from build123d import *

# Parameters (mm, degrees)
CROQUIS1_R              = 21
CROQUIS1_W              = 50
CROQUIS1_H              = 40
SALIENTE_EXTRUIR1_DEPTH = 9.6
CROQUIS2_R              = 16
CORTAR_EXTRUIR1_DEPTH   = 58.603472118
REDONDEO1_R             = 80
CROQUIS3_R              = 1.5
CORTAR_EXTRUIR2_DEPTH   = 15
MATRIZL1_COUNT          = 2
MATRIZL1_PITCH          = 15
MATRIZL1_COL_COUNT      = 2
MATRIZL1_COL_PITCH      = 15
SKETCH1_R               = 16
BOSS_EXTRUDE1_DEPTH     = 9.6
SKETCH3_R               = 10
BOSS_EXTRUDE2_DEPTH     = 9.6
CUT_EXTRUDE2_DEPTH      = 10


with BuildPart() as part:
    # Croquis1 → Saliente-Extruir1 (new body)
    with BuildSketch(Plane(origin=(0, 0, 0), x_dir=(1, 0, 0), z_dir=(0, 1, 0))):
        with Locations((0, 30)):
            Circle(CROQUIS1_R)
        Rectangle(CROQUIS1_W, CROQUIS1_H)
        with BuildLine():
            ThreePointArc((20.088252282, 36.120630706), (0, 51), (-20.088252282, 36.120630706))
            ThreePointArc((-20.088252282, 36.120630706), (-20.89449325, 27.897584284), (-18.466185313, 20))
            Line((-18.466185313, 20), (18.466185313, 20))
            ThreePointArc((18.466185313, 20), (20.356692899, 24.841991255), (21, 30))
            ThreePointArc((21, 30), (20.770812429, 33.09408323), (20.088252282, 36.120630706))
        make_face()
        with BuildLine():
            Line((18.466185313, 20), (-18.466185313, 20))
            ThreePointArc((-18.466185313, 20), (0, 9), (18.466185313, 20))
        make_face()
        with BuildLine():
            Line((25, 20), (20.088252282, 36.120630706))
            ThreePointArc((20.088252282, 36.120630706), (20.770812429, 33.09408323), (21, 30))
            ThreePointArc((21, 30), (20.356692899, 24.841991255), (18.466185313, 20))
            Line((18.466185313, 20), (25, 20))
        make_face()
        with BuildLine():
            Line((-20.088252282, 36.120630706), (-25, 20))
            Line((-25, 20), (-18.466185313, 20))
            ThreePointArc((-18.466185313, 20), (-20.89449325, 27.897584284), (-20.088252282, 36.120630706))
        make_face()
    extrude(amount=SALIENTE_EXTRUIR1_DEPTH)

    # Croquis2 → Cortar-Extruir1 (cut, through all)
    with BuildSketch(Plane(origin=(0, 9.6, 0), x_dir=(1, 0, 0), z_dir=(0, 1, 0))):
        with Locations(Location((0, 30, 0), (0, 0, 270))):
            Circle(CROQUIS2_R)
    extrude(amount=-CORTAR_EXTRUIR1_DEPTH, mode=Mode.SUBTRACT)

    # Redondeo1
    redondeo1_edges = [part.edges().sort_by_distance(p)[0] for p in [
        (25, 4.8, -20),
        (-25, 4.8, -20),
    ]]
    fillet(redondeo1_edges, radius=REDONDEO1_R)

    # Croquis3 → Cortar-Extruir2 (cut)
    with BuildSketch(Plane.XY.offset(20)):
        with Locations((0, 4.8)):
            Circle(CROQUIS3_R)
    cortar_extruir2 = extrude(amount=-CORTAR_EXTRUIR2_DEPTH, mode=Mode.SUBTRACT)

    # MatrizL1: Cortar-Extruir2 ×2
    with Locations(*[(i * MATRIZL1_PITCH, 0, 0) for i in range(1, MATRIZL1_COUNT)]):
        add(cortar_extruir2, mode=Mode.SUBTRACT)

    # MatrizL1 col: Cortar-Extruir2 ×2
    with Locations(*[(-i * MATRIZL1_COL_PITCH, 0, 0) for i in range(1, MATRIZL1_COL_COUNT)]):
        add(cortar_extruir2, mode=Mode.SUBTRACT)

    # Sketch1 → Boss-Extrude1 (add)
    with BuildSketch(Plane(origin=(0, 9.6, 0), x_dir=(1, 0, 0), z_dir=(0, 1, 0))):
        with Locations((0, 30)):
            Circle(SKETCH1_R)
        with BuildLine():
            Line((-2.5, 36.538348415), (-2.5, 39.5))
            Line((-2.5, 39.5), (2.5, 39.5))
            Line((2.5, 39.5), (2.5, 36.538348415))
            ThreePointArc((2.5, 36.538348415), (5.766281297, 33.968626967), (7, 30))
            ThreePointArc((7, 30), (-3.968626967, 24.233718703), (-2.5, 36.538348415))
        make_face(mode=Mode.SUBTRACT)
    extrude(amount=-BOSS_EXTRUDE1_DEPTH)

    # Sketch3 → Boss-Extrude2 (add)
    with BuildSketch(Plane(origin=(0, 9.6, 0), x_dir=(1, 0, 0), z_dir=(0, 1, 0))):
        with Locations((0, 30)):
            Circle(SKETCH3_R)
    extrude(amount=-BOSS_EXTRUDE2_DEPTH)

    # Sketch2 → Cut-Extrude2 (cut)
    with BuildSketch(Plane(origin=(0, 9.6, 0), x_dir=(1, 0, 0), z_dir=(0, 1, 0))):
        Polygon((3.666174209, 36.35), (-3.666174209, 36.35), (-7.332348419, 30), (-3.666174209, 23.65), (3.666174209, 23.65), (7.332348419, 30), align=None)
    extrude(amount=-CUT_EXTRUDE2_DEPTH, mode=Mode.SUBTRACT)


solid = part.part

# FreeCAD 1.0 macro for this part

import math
import FreeCAD as App
import Part
import Sketcher
from FreeCAD import Vector
Q = App.Units.Quantity


def edges_at(feature, points):
    """Names of the edges that pass closest to the given points."""
    edges = feature.Shape.Edges
    near = lambda p: min(range(len(edges)), key=lambda i: edges[i].distToShape(Part.Vertex(*p))[0])
    return sorted({f"Edge{near(p) + 1}" for p in points})


def add_polygon(sketch, points):
    """Adds a closed chain of lines whose ends are joined by coincident constraints."""
    first, n = sketch.GeometryCount, len(points)
    for a, b in zip(points, points[1:] + points[:1]):
        sketch.addGeometry(Part.LineSegment(App.Vector(*a, 0), App.Vector(*b, 0)), False)
    for i in range(n):
        sketch.addConstraint(Sketcher.Constraint("Coincident", first + i, 2, first + (i + 1) % n, 1))

doc = App.newDocument("Part")
body = doc.addObject("PartDesign::Body", "Body")

sketch1 = body.newObject("Sketcher::SketchObject", "Sketch")
sketch1.AttachmentSupport = (doc.getObject("XZ_Plane"), [""])
sketch1.MapMode = "FlatFace"
sketch1.addGeometry([
    Part.ArcOfCircle(Part.Circle(Vector(0, -30, 0), Vector(0, 0, 1), 21), math.radians(-163), math.radians(-17)),
    Part.LineSegment(Vector(-20, -36, 0), Vector(-25, -20, 0)),
    Part.LineSegment(Vector(-25, -20, 0), Vector(-25, 20, 0)),
    Part.LineSegment(Vector(-25, 20, 0), Vector(25, 20, 0)),
    Part.LineSegment(Vector(25, 20, 0), Vector(25, -20, 0)),
    Part.LineSegment(Vector(25, -20, 0), Vector(20, -36, 0)),
], False)
sketch1.addConstraint([
    Sketcher.Constraint("Tangent", 0, 1, 1, 1),
    Sketcher.Constraint("Coincident", 1, 2, 2, 1),
    Sketcher.Constraint("Coincident", 2, 2, 3, 1),
    Sketcher.Constraint("Coincident", 3, 2, 4, 1),
    Sketcher.Constraint("Coincident", 4, 2, 5, 1),
    Sketcher.Constraint("Tangent", 5, 2, 0, 2),
    Sketcher.Constraint("Vertical", 2),
    Sketcher.Constraint("Horizontal", 3),
    Sketcher.Constraint("Vertical", 4),
    Sketcher.Constraint("Symmetric", 1, 2, 3, 2, -1, 1),
    Sketcher.Constraint("Symmetric", 0, 1, 5, 2, -2),
    Sketcher.Constraint("Radius", 0, Q("21 mm")),
    Sketcher.Constraint("DistanceX", 3, 1, 3, 2, Q("50 mm")),
    Sketcher.Constraint("DistanceY", 2, 1, 2, 2, Q("40 mm")),
    Sketcher.Constraint("DistanceY", 0, 3, -1, 1, Q("30 mm")),
])
pad1 = body.newObject("PartDesign::Pad", "Pad")
pad1.Profile = sketch1
pad1.Length = 9.6
pad1.Reversed = True

sketch2 = body.newObject("Sketcher::SketchObject", "Sketch001")
sketch2.AttachmentSupport = (doc.getObject("XZ_Plane"), [""])
sketch2.MapMode = "FlatFace"
sketch2.AttachmentOffset = App.Placement(Vector(0, 0, -9.6), App.Rotation())
sketch2.addGeometry(Part.Circle(Vector(0, -30, 0), Vector(0, 0, 1), 16), False)
sketch2.addConstraint([
    Sketcher.Constraint("PointOnObject", 0, 3, -2),
    Sketcher.Constraint("Diameter", 0, Q("32 mm")),
    Sketcher.Constraint("DistanceY", 0, 3, -1, 1, Q("30 mm")),
])
pocket1 = body.newObject("PartDesign::Pocket", "Pocket")
pocket1.Profile = sketch2
pocket1.Type = "ThroughAll"
pocket1.Reversed = True
doc.recompute()

fillet = body.newObject("PartDesign::Fillet", "Fillet")
fillet.Base = (pocket1, edges_at(pocket1, [(25, 4.8, -20), (-25, 4.8, -20)]))
fillet.Radius = 80

sketch3 = body.newObject("Sketcher::SketchObject", "Sketch002")
sketch3.AttachmentSupport = (doc.getObject("XY_Plane"), [""])
sketch3.MapMode = "FlatFace"
sketch3.AttachmentOffset = App.Placement(Vector(0, 0, 20), App.Rotation())
sketch3.addGeometry(Part.Circle(Vector(0, 4.8, 0), Vector(0, 0, 1), 1.5), False)
sketch3.addConstraint([
    Sketcher.Constraint("PointOnObject", 0, 3, -2),
    Sketcher.Constraint("Diameter", 0, Q("3 mm")),
    Sketcher.Constraint("DistanceY", -1, 1, 0, 3, Q("4.8 mm")),
])
pocket2 = body.newObject("PartDesign::Pocket", "Pocket001")
pocket2.Profile = sketch3
pocket2.Length = 15
doc.recompute()

linearpattern = body.newObject("PartDesign::LinearPattern", "LinearPattern")
linearpattern.Originals = [pocket2]
linearpattern.Direction = (doc.getObject("X_Axis"), [""])
linearpattern.Mode = "offset"
linearpattern.Offset = 15
linearpattern.Occurrences = 2
body.Tip = linearpattern
doc.recompute()

linearpattern2 = body.newObject("PartDesign::LinearPattern", "LinearPattern001")
linearpattern2.Originals = [pocket2]
linearpattern2.Direction = (doc.getObject("X_Axis"), [""])
linearpattern2.Mode = "offset"
linearpattern2.Offset = 15
linearpattern2.Occurrences = 2
linearpattern2.Reversed = True
body.Tip = linearpattern2

sketch4 = body.newObject("Sketcher::SketchObject", "Sketch003")
sketch4.AttachmentSupport = (doc.getObject("XZ_Plane"), [""])
sketch4.MapMode = "FlatFace"
sketch4.AttachmentOffset = App.Placement(Vector(0, 0, -9.6), App.Rotation())
sketch4.addGeometry([
    Part.Circle(Vector(0, -30, 0), Vector(0, 0, 1), 16),
    Part.ArcOfCircle(Part.Circle(Vector(0, -30, 0), Vector(0, 0, 1), 7), math.radians(0), math.radians(249)),
    Part.LineSegment(Vector(-2.5, -36.5, 0), Vector(-2.5, -39.5, 0)),
    Part.LineSegment(Vector(-2.5, -39.5, 0), Vector(2.5, -39.5, 0)),
    Part.LineSegment(Vector(2.5, -39.5, 0), Vector(2.5, -36.5, 0)),
    Part.ArcOfCircle(Part.Circle(Vector(0, -30, 0), Vector(0, 0, 1), 7), math.radians(-69), math.radians(0)),
], False)
sketch4.addConstraint([
    Sketcher.Constraint("Coincident", 1, 2, 2, 1),
    Sketcher.Constraint("Coincident", 2, 2, 3, 1),
    Sketcher.Constraint("Coincident", 3, 2, 4, 1),
    Sketcher.Constraint("Coincident", 4, 2, 5, 1),
    Sketcher.Constraint("Tangent", 5, 2, 1, 1),
    Sketcher.Constraint("Vertical", 2),
    Sketcher.Constraint("Horizontal", 3),
    Sketcher.Constraint("Vertical", 4),
    Sketcher.Constraint("Coincident", 1, 3, 0, 3),
    Sketcher.Constraint("Equal", 1, 5),
    Sketcher.Constraint("Symmetric", 1, 2, 4, 2, -2),
    Sketcher.Constraint("Horizontal", 1, 3, 5, 2),
    Sketcher.Constraint("Diameter", 0, Q("32 mm")),
    Sketcher.Constraint("Radius", 1, Q("7 mm")),
    Sketcher.Constraint("DistanceX", 3, 1, 3, 2, Q("5 mm")),
    Sketcher.Constraint("DistanceY", 0, 3, -1, 1, Q("30 mm")),
    Sketcher.Constraint("DistanceY", 2, 2, -1, 1, Q("39.5 mm")),
])
pad2 = body.newObject("PartDesign::Pad", "Pad001")
pad2.Profile = sketch4
pad2.Length = 9.6

sketch5 = body.newObject("Sketcher::SketchObject", "Sketch004")
sketch5.AttachmentSupport = (doc.getObject("XZ_Plane"), [""])
sketch5.MapMode = "FlatFace"
sketch5.AttachmentOffset = App.Placement(Vector(0, 0, -9.6), App.Rotation())
sketch5.addGeometry(Part.Circle(Vector(0, -30, 0), Vector(0, 0, 1), 10), False)
sketch5.addConstraint([
    Sketcher.Constraint("PointOnObject", 0, 3, -2),
    Sketcher.Constraint("Diameter", 0, Q("20 mm")),
    Sketcher.Constraint("DistanceY", 0, 3, -1, 1, Q("30 mm")),
])
pad3 = body.newObject("PartDesign::Pad", "Pad002")
pad3.Profile = sketch5
pad3.Length = 9.6

sketch6 = body.newObject("Sketcher::SketchObject", "Sketch005")
sketch6.AttachmentSupport = (doc.getObject("XZ_Plane"), [""])
sketch6.MapMode = "FlatFace"
sketch6.AttachmentOffset = App.Placement(Vector(0, 0, -9.6), App.Rotation())
add_polygon(sketch6, [(4, -36), (-4, -36), (-7, -30), (-4, -24), (4, -24), (7, -30)])
sketch6.addConstraint([
    Sketcher.Constraint("Horizontal", 0),
    Sketcher.Constraint("Horizontal", 3),
    Sketcher.Constraint("Symmetric", 1, 2, 4, 2, -2),
    Sketcher.Constraint("Parallel", 1, 4),
    Sketcher.Constraint("Parallel", 2, 5),
    Sketcher.Constraint("Vertical", 0, 2, 2, 2),
    Sketcher.Constraint("Vertical", 3, 2, 5, 2),
    Sketcher.Constraint("Angle", 1, Q("120 deg")),
    Sketcher.Constraint("DistanceY", 1, 2, -1, 1, Q("30 mm")),
    Sketcher.Constraint("DistanceY", 0, 2, 2, 2, Q("12.7 mm")),
    Sketcher.Constraint("DistanceX", 0, 2, 0, 1, Q("7.332348 mm")),
])
pocket3 = body.newObject("PartDesign::Pocket", "Pocket002")
pocket3.Profile = sketch6
pocket3.Length = 10
pocket3.Reversed = True

doc.recompute()
